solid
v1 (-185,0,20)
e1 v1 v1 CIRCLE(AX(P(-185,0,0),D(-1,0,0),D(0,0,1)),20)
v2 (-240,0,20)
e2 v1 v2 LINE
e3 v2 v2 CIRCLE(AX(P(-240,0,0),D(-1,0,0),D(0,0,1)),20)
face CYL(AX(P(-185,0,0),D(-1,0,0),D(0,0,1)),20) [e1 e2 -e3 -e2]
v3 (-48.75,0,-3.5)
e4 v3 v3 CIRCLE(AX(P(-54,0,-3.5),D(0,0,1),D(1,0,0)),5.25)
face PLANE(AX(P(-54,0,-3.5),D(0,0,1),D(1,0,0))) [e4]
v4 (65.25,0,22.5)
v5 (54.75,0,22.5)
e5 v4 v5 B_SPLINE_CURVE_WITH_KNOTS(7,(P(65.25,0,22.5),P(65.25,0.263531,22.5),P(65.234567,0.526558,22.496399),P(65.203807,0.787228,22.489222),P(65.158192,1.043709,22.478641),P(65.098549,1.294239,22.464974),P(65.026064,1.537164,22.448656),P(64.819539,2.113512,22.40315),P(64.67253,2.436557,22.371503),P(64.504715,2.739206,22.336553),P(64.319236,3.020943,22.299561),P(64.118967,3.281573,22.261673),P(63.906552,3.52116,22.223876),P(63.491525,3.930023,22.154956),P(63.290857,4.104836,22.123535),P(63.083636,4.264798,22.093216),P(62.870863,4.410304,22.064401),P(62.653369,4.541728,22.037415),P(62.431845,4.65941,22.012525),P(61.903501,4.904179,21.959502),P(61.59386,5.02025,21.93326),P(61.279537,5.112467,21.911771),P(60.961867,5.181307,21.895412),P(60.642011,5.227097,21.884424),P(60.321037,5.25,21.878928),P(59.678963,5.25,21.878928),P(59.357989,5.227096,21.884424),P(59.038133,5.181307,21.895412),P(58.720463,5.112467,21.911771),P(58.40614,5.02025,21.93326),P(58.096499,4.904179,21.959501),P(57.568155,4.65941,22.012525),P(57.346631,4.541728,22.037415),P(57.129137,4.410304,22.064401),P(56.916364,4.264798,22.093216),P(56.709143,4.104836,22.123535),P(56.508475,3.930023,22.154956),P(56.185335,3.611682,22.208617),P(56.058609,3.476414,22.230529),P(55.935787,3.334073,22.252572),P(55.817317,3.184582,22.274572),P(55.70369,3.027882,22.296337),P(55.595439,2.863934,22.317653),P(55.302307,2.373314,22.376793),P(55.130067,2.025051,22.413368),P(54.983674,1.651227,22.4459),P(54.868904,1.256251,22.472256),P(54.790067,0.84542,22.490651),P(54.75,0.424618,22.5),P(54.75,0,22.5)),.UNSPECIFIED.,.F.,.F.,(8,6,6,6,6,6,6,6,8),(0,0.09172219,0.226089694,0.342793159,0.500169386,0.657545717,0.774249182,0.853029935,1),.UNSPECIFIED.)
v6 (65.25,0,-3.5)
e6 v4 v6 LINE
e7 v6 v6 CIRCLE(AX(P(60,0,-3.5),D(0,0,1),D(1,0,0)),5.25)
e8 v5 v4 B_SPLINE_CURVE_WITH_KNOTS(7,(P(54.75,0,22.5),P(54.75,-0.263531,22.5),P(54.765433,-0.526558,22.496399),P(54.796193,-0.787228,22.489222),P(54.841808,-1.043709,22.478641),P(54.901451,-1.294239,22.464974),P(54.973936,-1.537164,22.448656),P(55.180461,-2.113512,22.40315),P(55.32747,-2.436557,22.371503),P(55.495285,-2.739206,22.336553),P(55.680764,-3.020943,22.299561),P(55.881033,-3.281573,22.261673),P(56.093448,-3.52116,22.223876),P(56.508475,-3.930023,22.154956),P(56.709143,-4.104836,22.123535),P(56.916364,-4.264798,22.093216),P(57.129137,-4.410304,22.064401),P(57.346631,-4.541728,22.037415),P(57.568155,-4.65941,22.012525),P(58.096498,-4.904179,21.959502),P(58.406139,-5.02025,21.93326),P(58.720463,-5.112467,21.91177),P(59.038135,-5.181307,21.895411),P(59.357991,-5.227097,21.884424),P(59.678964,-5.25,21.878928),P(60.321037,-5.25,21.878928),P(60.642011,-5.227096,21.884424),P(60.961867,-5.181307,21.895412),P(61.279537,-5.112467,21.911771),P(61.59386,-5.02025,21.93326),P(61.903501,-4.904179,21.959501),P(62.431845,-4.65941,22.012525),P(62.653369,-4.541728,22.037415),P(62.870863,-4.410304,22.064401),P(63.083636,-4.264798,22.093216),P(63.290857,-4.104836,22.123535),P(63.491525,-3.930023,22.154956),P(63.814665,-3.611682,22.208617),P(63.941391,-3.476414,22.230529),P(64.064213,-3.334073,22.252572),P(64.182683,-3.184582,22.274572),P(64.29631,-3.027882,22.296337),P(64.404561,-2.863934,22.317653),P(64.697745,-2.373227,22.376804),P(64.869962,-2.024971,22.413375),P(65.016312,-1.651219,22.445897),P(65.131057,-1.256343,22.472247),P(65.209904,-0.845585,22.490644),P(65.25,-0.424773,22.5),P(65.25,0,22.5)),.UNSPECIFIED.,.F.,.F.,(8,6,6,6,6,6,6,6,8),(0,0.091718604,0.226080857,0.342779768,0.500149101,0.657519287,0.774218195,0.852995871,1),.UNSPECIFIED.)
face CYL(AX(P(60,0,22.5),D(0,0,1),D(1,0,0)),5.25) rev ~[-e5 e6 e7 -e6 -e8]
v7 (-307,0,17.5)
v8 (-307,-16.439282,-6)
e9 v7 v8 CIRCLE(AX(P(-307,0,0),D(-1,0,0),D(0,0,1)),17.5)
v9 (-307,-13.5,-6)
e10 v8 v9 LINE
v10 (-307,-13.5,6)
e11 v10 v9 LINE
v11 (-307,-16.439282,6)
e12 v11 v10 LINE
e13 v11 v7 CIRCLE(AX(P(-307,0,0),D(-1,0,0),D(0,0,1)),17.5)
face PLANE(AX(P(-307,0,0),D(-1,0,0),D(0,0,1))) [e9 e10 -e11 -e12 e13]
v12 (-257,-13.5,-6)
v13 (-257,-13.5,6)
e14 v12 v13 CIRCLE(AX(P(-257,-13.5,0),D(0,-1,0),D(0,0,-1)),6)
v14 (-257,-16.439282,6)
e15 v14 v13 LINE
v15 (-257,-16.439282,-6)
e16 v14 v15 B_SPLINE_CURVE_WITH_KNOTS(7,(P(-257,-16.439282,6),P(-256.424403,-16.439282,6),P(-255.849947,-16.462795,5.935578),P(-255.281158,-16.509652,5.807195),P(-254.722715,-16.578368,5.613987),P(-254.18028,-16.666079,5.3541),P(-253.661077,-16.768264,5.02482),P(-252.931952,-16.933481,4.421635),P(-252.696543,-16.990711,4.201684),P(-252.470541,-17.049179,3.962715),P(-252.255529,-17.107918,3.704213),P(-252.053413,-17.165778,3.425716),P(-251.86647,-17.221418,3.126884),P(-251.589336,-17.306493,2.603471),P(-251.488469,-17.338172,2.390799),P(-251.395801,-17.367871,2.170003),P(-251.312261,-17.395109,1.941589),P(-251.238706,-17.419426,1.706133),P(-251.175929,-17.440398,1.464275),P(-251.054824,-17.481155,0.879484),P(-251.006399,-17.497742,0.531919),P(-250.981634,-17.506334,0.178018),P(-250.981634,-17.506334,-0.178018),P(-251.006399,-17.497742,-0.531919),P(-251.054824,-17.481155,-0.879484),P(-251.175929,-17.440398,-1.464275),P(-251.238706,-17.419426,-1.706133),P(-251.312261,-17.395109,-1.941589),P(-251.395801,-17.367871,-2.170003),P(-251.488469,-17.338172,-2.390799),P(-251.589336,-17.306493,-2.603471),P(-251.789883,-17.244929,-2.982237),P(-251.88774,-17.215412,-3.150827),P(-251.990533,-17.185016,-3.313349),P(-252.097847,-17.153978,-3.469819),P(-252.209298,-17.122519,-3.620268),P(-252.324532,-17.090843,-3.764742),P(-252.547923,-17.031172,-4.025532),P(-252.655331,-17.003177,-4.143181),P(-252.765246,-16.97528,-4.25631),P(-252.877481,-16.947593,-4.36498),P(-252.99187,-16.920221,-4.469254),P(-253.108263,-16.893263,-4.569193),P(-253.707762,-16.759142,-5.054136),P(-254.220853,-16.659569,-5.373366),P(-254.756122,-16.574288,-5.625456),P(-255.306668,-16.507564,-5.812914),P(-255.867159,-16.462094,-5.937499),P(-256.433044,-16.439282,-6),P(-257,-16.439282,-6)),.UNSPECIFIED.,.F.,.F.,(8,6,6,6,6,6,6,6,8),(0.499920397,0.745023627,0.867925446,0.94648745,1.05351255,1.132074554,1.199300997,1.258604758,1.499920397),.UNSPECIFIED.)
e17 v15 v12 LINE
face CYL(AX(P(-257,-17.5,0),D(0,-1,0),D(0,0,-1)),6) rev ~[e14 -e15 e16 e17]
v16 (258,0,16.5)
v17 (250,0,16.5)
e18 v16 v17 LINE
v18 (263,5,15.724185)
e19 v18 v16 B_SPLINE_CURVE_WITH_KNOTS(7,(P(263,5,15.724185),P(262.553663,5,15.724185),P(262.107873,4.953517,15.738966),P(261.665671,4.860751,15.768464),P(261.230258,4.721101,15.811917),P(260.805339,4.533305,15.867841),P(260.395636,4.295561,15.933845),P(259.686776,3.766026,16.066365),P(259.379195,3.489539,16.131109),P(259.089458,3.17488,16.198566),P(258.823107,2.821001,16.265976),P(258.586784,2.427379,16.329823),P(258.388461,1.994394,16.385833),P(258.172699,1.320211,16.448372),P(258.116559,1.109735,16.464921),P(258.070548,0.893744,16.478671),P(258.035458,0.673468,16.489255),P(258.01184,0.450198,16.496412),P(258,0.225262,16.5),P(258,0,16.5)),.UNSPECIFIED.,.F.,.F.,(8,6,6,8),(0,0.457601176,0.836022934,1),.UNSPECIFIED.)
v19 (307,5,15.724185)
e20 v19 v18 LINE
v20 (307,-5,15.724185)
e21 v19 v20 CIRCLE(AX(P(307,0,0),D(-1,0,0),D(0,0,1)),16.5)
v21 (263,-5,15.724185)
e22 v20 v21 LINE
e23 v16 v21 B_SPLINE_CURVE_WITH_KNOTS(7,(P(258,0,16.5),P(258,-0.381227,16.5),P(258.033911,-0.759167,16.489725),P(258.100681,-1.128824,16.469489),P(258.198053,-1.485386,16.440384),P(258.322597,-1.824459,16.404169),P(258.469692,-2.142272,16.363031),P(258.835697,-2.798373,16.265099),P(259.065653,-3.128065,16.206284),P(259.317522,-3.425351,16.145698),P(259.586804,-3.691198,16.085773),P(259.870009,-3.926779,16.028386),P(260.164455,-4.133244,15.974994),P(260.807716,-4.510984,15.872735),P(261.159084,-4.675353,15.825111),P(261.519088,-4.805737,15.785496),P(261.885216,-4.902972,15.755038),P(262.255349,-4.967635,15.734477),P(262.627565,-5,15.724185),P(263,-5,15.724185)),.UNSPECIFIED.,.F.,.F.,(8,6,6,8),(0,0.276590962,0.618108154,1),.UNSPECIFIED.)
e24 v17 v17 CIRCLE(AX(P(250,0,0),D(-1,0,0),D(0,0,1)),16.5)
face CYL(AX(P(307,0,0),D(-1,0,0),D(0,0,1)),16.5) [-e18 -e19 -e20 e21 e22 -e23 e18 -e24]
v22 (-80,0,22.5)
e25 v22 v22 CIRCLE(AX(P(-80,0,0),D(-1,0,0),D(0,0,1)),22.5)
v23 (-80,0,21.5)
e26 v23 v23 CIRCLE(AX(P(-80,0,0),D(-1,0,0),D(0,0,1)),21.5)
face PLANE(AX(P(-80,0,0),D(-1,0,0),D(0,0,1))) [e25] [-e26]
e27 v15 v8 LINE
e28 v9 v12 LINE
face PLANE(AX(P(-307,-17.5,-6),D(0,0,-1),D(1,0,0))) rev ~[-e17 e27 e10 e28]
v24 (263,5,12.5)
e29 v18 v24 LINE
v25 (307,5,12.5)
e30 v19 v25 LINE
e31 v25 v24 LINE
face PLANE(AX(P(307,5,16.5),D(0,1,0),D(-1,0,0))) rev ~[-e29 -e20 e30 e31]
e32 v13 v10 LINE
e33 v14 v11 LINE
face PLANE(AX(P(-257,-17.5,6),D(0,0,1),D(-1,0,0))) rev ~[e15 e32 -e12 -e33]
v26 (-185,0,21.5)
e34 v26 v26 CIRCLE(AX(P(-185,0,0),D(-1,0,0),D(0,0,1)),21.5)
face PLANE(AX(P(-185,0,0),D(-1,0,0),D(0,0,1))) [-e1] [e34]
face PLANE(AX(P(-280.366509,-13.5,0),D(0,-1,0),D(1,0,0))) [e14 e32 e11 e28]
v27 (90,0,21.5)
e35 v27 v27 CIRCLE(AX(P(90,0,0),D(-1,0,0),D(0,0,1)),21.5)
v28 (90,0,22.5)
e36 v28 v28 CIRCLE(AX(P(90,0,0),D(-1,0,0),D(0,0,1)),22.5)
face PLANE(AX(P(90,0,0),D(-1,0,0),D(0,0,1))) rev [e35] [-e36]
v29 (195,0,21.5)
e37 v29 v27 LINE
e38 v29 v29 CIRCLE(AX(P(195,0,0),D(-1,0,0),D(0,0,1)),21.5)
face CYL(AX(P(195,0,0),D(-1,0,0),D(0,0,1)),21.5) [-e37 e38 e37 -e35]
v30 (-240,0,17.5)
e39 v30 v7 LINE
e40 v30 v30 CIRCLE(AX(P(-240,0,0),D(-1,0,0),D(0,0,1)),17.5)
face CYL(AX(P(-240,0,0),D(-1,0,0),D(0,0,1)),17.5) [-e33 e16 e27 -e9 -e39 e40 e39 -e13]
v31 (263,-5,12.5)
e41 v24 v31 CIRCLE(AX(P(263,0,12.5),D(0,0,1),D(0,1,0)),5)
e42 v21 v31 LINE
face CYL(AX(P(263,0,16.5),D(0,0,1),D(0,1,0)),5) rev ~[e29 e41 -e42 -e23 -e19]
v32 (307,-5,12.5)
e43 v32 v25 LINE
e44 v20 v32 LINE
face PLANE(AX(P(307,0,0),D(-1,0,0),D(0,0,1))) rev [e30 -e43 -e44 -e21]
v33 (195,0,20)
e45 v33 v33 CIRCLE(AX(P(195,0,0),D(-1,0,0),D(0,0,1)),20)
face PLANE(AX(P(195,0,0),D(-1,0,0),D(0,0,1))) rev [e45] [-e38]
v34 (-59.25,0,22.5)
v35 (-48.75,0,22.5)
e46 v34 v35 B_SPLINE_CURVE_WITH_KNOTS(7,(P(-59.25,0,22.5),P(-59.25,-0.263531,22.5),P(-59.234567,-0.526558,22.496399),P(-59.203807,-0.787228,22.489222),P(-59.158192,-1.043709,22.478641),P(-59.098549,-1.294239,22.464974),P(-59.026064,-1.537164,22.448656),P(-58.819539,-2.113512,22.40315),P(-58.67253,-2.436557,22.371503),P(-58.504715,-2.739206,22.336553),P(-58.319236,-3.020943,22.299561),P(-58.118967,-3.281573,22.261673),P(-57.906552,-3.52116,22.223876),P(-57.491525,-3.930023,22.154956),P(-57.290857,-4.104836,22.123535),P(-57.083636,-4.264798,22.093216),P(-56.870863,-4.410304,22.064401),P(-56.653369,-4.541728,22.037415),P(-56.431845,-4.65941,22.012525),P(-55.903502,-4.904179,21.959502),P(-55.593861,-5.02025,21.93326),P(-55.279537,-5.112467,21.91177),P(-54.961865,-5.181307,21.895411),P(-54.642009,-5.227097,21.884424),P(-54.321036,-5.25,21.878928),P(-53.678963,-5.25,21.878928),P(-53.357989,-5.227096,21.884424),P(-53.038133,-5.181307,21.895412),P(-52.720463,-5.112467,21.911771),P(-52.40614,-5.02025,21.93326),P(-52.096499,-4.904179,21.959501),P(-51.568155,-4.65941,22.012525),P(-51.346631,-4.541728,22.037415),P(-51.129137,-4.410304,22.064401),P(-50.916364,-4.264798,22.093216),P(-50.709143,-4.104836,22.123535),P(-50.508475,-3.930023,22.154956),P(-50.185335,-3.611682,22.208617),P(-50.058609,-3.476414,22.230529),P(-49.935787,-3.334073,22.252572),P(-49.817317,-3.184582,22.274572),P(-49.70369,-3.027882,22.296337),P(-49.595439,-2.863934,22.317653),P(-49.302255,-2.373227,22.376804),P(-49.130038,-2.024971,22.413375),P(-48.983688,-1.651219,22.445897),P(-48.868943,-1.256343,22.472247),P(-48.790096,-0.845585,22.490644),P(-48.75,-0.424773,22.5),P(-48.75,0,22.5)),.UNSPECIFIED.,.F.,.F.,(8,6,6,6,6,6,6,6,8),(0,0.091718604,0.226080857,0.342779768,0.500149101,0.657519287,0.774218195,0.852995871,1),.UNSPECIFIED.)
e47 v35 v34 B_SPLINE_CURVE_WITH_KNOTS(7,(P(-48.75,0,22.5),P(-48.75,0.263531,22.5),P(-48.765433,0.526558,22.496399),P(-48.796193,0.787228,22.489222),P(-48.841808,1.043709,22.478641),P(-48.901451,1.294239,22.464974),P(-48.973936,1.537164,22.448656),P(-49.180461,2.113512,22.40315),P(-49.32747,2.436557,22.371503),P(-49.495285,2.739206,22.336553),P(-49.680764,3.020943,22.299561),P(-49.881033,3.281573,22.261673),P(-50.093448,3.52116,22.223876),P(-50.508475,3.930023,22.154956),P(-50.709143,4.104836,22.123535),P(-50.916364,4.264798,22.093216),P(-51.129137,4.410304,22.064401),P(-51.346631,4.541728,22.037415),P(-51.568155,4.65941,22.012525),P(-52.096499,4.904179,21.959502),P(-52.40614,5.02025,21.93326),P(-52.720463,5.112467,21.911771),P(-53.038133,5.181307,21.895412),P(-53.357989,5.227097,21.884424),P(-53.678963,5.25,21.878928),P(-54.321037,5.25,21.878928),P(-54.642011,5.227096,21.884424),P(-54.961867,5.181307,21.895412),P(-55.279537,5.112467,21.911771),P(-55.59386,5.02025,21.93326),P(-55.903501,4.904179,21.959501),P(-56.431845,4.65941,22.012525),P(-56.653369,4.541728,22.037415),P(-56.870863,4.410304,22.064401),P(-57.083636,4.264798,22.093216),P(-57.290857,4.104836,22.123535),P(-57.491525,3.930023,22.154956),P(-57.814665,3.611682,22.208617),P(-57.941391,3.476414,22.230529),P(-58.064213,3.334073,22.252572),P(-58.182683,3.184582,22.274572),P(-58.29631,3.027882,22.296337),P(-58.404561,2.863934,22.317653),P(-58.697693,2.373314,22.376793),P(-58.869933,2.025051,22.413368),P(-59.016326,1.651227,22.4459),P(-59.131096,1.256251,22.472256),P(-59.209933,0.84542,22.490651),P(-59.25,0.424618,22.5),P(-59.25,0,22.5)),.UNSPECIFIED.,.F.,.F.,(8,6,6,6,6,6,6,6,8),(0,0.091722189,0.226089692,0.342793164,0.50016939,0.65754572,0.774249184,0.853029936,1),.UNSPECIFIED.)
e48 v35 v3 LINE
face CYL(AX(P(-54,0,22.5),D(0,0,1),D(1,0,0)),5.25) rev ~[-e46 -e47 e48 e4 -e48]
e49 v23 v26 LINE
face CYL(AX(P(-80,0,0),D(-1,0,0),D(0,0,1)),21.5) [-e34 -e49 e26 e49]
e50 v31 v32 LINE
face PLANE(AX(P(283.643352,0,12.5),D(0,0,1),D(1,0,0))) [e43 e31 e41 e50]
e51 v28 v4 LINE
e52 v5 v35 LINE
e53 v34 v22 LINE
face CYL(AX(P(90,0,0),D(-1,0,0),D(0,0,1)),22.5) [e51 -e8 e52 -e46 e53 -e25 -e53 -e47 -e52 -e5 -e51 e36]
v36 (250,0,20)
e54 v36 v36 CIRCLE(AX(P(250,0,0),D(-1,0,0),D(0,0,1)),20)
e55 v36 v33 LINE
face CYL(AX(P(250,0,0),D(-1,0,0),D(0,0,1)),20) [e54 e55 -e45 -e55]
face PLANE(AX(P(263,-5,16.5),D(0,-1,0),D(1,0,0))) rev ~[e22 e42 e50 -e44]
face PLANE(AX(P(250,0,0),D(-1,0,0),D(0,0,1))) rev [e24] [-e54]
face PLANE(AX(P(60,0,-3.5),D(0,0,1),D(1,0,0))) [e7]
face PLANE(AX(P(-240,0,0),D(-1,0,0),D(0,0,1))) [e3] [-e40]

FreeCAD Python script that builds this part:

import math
import FreeCAD as App
import Part
import Sketcher
from FreeCAD import Vector

doc = App.newDocument("Part")
body = doc.addObject("PartDesign::Body", "Body")

# Sketch on XZ plane
sketch1 = doc.addObject("Sketcher::SketchObject", "Sketch")
body.addObject(sketch1)
sketch1.AttachmentSupport = (doc.XZ_Plane, [""])
sketch1.MapMode = "FlatFace"
sketch1.addGeometry([
    Part.LineSegment(Vector(-307, 17.5, 0), Vector(-307, 0, 0)),  # 0
    Part.LineSegment(Vector(-307, 0, 0), Vector(307, 0, 0)),  # 1
    Part.LineSegment(Vector(307, 0, 0), Vector(307, 16.5, 0)),  # 2
    Part.LineSegment(Vector(307, 16.5, 0), Vector(250, 16.5, 0)),  # 3
    Part.LineSegment(Vector(250, 16.5, 0), Vector(250, 20, 0)),  # 4
    Part.LineSegment(Vector(250, 20, 0), Vector(195, 20, 0)),  # 5
    Part.LineSegment(Vector(195, 20, 0), Vector(195, 21.5, 0)),  # 6
    Part.LineSegment(Vector(195, 21.5, 0), Vector(90, 21.5, 0)),  # 7
    Part.LineSegment(Vector(90, 21.5, 0), Vector(90, 22.5, 0)),  # 8
    Part.LineSegment(Vector(90, 22.5, 0), Vector(-80, 22.5, 0)),  # 9
    Part.LineSegment(Vector(-80, 22.5, 0), Vector(-80, 21.5, 0)),  # 10
    Part.LineSegment(Vector(-80, 21.5, 0), Vector(-185, 21.5, 0)),  # 11
    Part.LineSegment(Vector(-185, 21.5, 0), Vector(-185, 20, 0)),  # 12
    Part.LineSegment(Vector(-185, 20, 0), Vector(-240, 20, 0)),  # 13
    Part.LineSegment(Vector(-240, 20, 0), Vector(-240, 17.5, 0)),  # 14
    Part.LineSegment(Vector(-240, 17.5, 0), Vector(-307, 17.5, 0)),  # 15
], False)
sketch1.addConstraint([
    Sketcher.Constraint("Coincident", 0, 2, 1, 1),
    Sketcher.Constraint("Coincident", 1, 2, 2, 1),
    Sketcher.Constraint("Coincident", 2, 2, 3, 1),
    Sketcher.Constraint("Coincident", 3, 2, 4, 1),
    Sketcher.Constraint("Coincident", 4, 2, 5, 1),
    Sketcher.Constraint("Coincident", 5, 2, 6, 1),
    Sketcher.Constraint("Coincident", 6, 2, 7, 1),
    Sketcher.Constraint("Coincident", 7, 2, 8, 1),
    Sketcher.Constraint("Coincident", 8, 2, 9, 1),
    Sketcher.Constraint("Coincident", 9, 2, 10, 1),
    Sketcher.Constraint("Coincident", 10, 2, 11, 1),
    Sketcher.Constraint("Coincident", 11, 2, 12, 1),
    Sketcher.Constraint("Coincident", 12, 2, 13, 1),
    Sketcher.Constraint("Coincident", 13, 2, 14, 1),
    Sketcher.Constraint("Coincident", 14, 2, 15, 1),
    Sketcher.Constraint("Coincident", 15, 2, 0, 1),
    Sketcher.Constraint("Vertical", 0),
    Sketcher.Constraint("Horizontal", 1),
    Sketcher.Constraint("Vertical", 2),
    Sketcher.Constraint("Horizontal", 3),
    Sketcher.Constraint("Vertical", 4),
    Sketcher.Constraint("Horizontal", 5),
    Sketcher.Constraint("Vertical", 6),
    Sketcher.Constraint("Horizontal", 7),
    Sketcher.Constraint("Vertical", 8),
    Sketcher.Constraint("Horizontal", 9),
    Sketcher.Constraint("Vertical", 10),
    Sketcher.Constraint("Horizontal", 11),
    Sketcher.Constraint("Vertical", 12),
    Sketcher.Constraint("Horizontal", 13),
    Sketcher.Constraint("Vertical", 14),
    Sketcher.Constraint("Horizontal", 15),
    Sketcher.Constraint("Symmetric", 0, 2, 1, 2, -1, 1),
    Sketcher.Constraint("Horizontal", 7, 2, 10, 2),
    Sketcher.Constraint("Horizontal", 5, 2, 12, 2),
    Sketcher.Constraint("Equal", 7, 11),
    Sketcher.Constraint("Equal", 5, 13),
    Sketcher.Constraint("DistanceX", 1, 1, 1, 2, 614.0),
    Sketcher.Constraint("DistanceX", 3, 2, 3, 1, 57.0),
    Sketcher.Constraint("DistanceX", 5, 2, 5, 1, 55.0),
    Sketcher.Constraint("DistanceX", 7, 2, 7, 1, 105.0),
    Sketcher.Constraint("DistanceX", 9, 2, 9, 1, 170.0),
    Sketcher.Constraint("DistanceY", 8, 1, 8, 2, 1.0),
    Sketcher.Constraint("DistanceY", 0, 2, 0, 1, 17.5),
    Sketcher.Constraint("DistanceY", 2, 1, 2, 2, 16.5),
    Sketcher.Constraint("DistanceY", 4, 1, 4, 2, 3.5),
    Sketcher.Constraint("DistanceY", 6, 1, 6, 2, 1.5),
])
revolution = doc.addObject("PartDesign::Revolution", "Revolution")
body.addObject(revolution)
revolution.Profile = sketch1
revolution.ReferenceAxis = (sketch1, ["H_Axis"])
revolution.Angle = 360

# Sketch on XZ plane
sketch2 = doc.addObject("Sketcher::SketchObject", "Sketch001")
body.addObject(sketch2)
sketch2.AttachmentSupport = (doc.XZ_Plane, [""])
sketch2.MapMode = "FlatFace"
sketch2.AttachmentOffset = App.Placement(Vector(0, 0, 17.5), App.Rotation())
sketch2.addGeometry([
    Part.LineSegment(Vector(-257, 6, 0), Vector(-307, 6, 0)),
    Part.LineSegment(Vector(-307, 6, 0), Vector(-307, -6, 0)),
    Part.LineSegment(Vector(-307, -6, 0), Vector(-257, -6, 0)),
    Part.ArcOfCircle(Part.Circle(Vector(-257, 0, 0), Vector(0, 0, 1), 6), math.radians(-90), math.radians(90)),
], False)
sketch2.addConstraint([
    Sketcher.Constraint("Coincident", 0, 2, 1, 1),
    Sketcher.Constraint("Coincident", 1, 2, 2, 1),
    Sketcher.Constraint("Tangent", 2, 2, 3, 1),
    Sketcher.Constraint("Tangent", 3, 2, 0, 1),
    Sketcher.Constraint("Horizontal", 0),
    Sketcher.Constraint("Vertical", 1),
    Sketcher.Constraint("Horizontal", 2),
    Sketcher.Constraint("PointOnObject", 3, 3, -1),
    Sketcher.Constraint("Radius", 3, 6.0),
    Sketcher.Constraint("DistanceX", 0, 2, 0, 1, 50.0),
    Sketcher.Constraint("DistanceX", 3, 3, -1, 1, 257.0),
])
pocket1 = doc.addObject("PartDesign::Pocket", "Pocket")
body.addObject(pocket1)
pocket1.Profile = sketch2
pocket1.Length = 4

# Sketch on XY plane
sketch3 = doc.addObject("Sketcher::SketchObject", "Sketch002")
body.addObject(sketch3)
sketch3.AttachmentSupport = (doc.XY_Plane, [""])
sketch3.MapMode = "FlatFace"
sketch3.AttachmentOffset = App.Placement(Vector(0, 0, 16.5), App.Rotation())
sketch3.addGeometry([
    Part.LineSegment(Vector(307, -5, 0), Vector(307, 5, 0)),
    Part.LineSegment(Vector(307, 5, 0), Vector(263, 5, 0)),
    Part.ArcOfCircle(Part.Circle(Vector(263, 0, 0), Vector(0, 0, 1), 5), math.radians(90), math.radians(270)),
    Part.LineSegment(Vector(263, -5, 0), Vector(307, -5, 0)),
], False)
sketch3.addConstraint([
    Sketcher.Constraint("Coincident", 0, 2, 1, 1),
    Sketcher.Constraint("Tangent", 1, 2, 2, 1),
    Sketcher.Constraint("Tangent", 2, 2, 3, 1),
    Sketcher.Constraint("Coincident", 3, 2, 0, 1),
    Sketcher.Constraint("Vertical", 0),
    Sketcher.Constraint("Horizontal", 1),
    Sketcher.Constraint("Horizontal", 3),
    Sketcher.Constraint("PointOnObject", 2, 3, -1),
    Sketcher.Constraint("Radius", 2, 5.0),
    Sketcher.Constraint("DistanceX", 1, 2, 1, 1, 44.0),
    Sketcher.Constraint("DistanceX", -1, 1, 2, 3, 263.0),
])
pocket2 = doc.addObject("PartDesign::Pocket", "Pocket001")
body.addObject(pocket2)
pocket2.Profile = sketch3
pocket2.Length = 4

# Sketch on XY plane
sketch4 = doc.addObject("Sketcher::SketchObject", "Sketch003")
body.addObject(sketch4)
sketch4.AttachmentSupport = (doc.XY_Plane, [""])
sketch4.MapMode = "FlatFace"
sketch4.AttachmentOffset = App.Placement(Vector(0, 0, 22.5), App.Rotation())
sketch4.addGeometry([
    Part.Circle(Vector(-54, 0, 0), Vector(0, 0, 1), 5),
    Part.Circle(Vector(60, 0, 0), Vector(0, 0, 1), 5),
], False)
sketch4.addConstraint([
    Sketcher.Constraint("Equal", 0, 1),
    Sketcher.Constraint("PointOnObject", 0, 3, -1),
    Sketcher.Constraint("PointOnObject", 1, 3, -1),
    Sketcher.Constraint("Diameter", 0, 10.5),
    Sketcher.Constraint("DistanceX", 0, 3, -1, 1, 54.0),
    Sketcher.Constraint("DistanceX", -1, 1, 1, 3, 60.0),
])
pocket3 = doc.addObject("PartDesign::Pocket", "Pocket002")
body.addObject(pocket3)
pocket3.Profile = sketch4
pocket3.Length = 26

doc.recompute()
